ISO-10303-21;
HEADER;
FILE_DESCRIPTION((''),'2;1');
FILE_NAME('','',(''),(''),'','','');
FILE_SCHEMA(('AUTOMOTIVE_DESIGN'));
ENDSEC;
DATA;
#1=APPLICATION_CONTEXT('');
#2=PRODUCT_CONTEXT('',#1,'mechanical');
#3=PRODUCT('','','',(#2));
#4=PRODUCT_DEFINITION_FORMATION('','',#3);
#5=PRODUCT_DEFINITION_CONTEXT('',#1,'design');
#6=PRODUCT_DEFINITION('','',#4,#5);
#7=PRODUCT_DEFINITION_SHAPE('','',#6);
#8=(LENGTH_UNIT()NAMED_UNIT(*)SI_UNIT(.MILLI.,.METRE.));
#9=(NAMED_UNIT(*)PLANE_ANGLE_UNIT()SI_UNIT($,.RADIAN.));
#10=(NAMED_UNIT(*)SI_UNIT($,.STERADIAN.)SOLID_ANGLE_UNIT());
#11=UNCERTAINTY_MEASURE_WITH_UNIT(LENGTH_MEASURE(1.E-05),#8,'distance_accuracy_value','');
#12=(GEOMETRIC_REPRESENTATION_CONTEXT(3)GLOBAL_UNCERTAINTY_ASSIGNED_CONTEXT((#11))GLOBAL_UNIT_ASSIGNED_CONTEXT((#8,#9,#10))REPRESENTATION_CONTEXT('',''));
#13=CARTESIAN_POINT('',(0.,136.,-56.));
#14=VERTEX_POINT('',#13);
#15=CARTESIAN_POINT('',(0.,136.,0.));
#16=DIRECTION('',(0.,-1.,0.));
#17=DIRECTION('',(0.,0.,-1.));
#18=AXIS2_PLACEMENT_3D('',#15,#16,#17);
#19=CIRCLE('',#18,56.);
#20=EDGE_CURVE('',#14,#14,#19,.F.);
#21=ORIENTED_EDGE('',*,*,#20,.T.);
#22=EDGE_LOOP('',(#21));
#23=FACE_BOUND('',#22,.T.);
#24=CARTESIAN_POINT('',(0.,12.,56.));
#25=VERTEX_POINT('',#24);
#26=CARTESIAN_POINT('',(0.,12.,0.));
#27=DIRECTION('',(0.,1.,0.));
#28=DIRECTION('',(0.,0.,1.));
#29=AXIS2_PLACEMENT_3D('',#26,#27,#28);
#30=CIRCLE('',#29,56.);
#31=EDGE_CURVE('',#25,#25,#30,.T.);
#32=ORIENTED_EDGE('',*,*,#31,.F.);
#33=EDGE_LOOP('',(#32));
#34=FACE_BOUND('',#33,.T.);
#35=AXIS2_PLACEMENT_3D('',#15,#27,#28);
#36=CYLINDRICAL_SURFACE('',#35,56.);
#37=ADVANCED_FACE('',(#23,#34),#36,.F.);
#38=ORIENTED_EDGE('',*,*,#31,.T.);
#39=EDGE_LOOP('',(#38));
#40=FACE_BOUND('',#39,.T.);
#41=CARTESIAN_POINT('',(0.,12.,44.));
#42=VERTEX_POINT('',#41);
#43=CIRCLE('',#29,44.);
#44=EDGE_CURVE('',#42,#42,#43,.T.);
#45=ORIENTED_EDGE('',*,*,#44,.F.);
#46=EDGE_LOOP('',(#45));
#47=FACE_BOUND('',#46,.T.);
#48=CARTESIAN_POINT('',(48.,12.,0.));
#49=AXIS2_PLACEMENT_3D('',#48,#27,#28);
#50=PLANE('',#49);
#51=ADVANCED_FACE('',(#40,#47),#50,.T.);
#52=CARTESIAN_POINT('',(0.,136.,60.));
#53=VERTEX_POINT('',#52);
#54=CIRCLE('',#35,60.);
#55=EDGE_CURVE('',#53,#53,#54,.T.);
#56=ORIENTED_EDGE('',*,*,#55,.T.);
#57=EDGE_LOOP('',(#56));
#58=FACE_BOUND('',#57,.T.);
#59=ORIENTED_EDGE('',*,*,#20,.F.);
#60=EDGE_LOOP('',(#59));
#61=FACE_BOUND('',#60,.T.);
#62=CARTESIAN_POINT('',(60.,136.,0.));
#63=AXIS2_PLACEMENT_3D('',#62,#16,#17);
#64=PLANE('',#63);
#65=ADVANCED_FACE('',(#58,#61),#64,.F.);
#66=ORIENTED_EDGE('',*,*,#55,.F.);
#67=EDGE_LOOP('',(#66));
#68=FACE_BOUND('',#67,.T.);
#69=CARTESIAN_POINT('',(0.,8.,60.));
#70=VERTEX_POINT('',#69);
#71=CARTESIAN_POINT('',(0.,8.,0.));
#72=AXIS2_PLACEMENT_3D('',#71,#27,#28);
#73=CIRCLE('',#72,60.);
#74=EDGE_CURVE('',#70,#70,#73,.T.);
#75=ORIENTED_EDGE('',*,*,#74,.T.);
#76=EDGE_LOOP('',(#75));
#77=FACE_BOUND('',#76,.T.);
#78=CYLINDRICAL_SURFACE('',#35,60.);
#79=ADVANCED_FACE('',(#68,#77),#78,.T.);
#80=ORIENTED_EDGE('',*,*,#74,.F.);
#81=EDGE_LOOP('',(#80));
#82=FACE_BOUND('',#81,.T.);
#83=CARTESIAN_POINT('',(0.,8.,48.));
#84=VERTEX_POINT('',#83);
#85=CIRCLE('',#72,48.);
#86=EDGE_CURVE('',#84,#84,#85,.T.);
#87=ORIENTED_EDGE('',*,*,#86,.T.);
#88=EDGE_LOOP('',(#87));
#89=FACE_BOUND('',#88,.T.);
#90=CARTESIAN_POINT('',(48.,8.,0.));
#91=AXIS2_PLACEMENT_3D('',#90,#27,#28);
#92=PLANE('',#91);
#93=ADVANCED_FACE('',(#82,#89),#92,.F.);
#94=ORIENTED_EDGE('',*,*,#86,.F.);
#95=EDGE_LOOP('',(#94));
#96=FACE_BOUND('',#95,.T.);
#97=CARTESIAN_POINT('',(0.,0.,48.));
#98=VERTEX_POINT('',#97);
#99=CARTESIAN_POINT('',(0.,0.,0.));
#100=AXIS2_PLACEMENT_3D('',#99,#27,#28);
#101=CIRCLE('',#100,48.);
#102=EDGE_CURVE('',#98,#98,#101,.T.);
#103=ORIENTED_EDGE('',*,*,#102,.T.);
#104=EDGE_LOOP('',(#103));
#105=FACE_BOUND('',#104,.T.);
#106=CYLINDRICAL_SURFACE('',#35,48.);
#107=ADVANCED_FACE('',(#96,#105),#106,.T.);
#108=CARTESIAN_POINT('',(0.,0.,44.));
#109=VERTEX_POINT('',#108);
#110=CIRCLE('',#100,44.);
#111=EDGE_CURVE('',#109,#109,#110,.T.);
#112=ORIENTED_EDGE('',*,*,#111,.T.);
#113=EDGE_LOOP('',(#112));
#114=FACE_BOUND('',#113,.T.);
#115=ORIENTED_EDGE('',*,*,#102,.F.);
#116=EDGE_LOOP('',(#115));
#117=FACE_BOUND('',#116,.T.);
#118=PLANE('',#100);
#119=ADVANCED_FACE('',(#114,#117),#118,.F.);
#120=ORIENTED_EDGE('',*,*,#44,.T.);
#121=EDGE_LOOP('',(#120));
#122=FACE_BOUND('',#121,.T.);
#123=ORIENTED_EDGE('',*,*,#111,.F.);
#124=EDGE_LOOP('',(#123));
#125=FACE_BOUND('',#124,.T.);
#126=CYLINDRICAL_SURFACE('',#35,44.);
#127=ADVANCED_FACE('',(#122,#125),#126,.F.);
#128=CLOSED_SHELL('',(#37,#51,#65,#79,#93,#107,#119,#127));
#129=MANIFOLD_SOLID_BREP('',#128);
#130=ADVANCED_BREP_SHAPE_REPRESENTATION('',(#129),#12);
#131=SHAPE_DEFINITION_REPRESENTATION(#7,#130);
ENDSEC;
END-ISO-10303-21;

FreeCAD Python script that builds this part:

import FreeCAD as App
import Part
import Sketcher


def faces_at(feature, points):
    """Names of the faces that lie closest to the given points."""
    faces = feature.Shape.Faces
    near = lambda p: min(range(len(faces)), key=lambda i: faces[i].distToShape(Part.Vertex(*p))[0])
    return sorted({f"Face{near(p) + 1}" for p in points})

doc = App.newDocument("Part")
body = doc.addObject("PartDesign::Body", "Body")

# Sketch on XY plane
sketch1 = body.newObject("Sketcher::SketchObject", "Sketch")
sketch1.AttachmentSupport = (doc.getObject("XY_Plane"), [""])
sketch1.MapMode = "FlatFace"
sketch1.addGeometry(Part.LineSegment(App.Vector(0, 0, 0), App.Vector(48, 0, 0)), False)
sketch1.addGeometry(Part.LineSegment(App.Vector(48, 0, 0), App.Vector(48, 8, 0)), False)
sketch1.addGeometry(Part.LineSegment(App.Vector(48, 8, 0), App.Vector(60, 8, 0)), False)
sketch1.addGeometry(Part.LineSegment(App.Vector(60, 8, 0), App.Vector(60, 136, 0)), False)
sketch1.addGeometry(Part.LineSegment(App.Vector(60, 136, 0), App.Vector(0, 136, 0)), False)
sketch1.addGeometry(Part.LineSegment(App.Vector(0, 136, 0), App.Vector(0, 0, 0)), False)
sketch1.addConstraint(Sketcher.Constraint("Coincident", 0, 2, 1, 1))
sketch1.addConstraint(Sketcher.Constraint("Coincident", 1, 2, 2, 1))
sketch1.addConstraint(Sketcher.Constraint("Coincident", 2, 2, 3, 1))
sketch1.addConstraint(Sketcher.Constraint("Coincident", 3, 2, 4, 1))
sketch1.addConstraint(Sketcher.Constraint("Coincident", 4, 2, 5, 1))
sketch1.addConstraint(Sketcher.Constraint("Coincident", 5, 2, 0, 1))
sketch1.addConstraint(Sketcher.Constraint("Horizontal", 0))
sketch1.addConstraint(Sketcher.Constraint("Vertical", 1))
sketch1.addConstraint(Sketcher.Constraint("Horizontal", 2))
sketch1.addConstraint(Sketcher.Constraint("Vertical", 3))
sketch1.addConstraint(Sketcher.Constraint("Horizontal", 4))
sketch1.addConstraint(Sketcher.Constraint("Vertical", 5))
sketch1.addConstraint(Sketcher.Constraint("Coincident", 5, 2, -1, 1))
sketch1.addConstraint(Sketcher.Constraint("DistanceX", 0, 1, 0, 2, 48.0))
sketch1.addConstraint(Sketcher.Constraint("DistanceX", 2, 1, 2, 2, 12.0))
sketch1.addConstraint(Sketcher.Constraint("DistanceY", 1, 1, 1, 2, 8.0))
sketch1.addConstraint(Sketcher.Constraint("DistanceY", 3, 1, 3, 2, 128.0))
revolution = body.newObject("PartDesign::Revolution", "Revolution")
revolution.Profile = sketch1
revolution.ReferenceAxis = (sketch1, ["V_Axis"])
revolution.Angle = 360
doc.recompute()

thickness = body.newObject("PartDesign::Thickness", "Thickness")
thickness.Base = (revolution, faces_at(revolution, [(0, 136, 0)]))
thickness.Value = 4
thickness.Reversed = True
thickness.Join = "Intersection"

# Sketch on XZ plane
sketch2 = body.newObject("Sketcher::SketchObject", "Sketch001")
sketch2.AttachmentSupport = (doc.getObject("XZ_Plane"), [""])
sketch2.MapMode = "FlatFace"
sketch2.AttachmentOffset = App.Placement(App.Vector(0, 0, -4), App.Rotation())
sketch2.addGeometry(Part.Circle(App.Vector(0, 0, 0), App.Vector(0, 0, 1), 44), False)
sketch2.addConstraint(Sketcher.Constraint("Coincident", 0, 3, -1, 1))
sketch2.addConstraint(Sketcher.Constraint("Diameter", 0, 88.0))
pocket1 = body.newObject("PartDesign::Pocket", "Pocket")
pocket1.Profile = sketch2
pocket1.Length = 10
pocket1.Reversed = True

doc.recompute()
